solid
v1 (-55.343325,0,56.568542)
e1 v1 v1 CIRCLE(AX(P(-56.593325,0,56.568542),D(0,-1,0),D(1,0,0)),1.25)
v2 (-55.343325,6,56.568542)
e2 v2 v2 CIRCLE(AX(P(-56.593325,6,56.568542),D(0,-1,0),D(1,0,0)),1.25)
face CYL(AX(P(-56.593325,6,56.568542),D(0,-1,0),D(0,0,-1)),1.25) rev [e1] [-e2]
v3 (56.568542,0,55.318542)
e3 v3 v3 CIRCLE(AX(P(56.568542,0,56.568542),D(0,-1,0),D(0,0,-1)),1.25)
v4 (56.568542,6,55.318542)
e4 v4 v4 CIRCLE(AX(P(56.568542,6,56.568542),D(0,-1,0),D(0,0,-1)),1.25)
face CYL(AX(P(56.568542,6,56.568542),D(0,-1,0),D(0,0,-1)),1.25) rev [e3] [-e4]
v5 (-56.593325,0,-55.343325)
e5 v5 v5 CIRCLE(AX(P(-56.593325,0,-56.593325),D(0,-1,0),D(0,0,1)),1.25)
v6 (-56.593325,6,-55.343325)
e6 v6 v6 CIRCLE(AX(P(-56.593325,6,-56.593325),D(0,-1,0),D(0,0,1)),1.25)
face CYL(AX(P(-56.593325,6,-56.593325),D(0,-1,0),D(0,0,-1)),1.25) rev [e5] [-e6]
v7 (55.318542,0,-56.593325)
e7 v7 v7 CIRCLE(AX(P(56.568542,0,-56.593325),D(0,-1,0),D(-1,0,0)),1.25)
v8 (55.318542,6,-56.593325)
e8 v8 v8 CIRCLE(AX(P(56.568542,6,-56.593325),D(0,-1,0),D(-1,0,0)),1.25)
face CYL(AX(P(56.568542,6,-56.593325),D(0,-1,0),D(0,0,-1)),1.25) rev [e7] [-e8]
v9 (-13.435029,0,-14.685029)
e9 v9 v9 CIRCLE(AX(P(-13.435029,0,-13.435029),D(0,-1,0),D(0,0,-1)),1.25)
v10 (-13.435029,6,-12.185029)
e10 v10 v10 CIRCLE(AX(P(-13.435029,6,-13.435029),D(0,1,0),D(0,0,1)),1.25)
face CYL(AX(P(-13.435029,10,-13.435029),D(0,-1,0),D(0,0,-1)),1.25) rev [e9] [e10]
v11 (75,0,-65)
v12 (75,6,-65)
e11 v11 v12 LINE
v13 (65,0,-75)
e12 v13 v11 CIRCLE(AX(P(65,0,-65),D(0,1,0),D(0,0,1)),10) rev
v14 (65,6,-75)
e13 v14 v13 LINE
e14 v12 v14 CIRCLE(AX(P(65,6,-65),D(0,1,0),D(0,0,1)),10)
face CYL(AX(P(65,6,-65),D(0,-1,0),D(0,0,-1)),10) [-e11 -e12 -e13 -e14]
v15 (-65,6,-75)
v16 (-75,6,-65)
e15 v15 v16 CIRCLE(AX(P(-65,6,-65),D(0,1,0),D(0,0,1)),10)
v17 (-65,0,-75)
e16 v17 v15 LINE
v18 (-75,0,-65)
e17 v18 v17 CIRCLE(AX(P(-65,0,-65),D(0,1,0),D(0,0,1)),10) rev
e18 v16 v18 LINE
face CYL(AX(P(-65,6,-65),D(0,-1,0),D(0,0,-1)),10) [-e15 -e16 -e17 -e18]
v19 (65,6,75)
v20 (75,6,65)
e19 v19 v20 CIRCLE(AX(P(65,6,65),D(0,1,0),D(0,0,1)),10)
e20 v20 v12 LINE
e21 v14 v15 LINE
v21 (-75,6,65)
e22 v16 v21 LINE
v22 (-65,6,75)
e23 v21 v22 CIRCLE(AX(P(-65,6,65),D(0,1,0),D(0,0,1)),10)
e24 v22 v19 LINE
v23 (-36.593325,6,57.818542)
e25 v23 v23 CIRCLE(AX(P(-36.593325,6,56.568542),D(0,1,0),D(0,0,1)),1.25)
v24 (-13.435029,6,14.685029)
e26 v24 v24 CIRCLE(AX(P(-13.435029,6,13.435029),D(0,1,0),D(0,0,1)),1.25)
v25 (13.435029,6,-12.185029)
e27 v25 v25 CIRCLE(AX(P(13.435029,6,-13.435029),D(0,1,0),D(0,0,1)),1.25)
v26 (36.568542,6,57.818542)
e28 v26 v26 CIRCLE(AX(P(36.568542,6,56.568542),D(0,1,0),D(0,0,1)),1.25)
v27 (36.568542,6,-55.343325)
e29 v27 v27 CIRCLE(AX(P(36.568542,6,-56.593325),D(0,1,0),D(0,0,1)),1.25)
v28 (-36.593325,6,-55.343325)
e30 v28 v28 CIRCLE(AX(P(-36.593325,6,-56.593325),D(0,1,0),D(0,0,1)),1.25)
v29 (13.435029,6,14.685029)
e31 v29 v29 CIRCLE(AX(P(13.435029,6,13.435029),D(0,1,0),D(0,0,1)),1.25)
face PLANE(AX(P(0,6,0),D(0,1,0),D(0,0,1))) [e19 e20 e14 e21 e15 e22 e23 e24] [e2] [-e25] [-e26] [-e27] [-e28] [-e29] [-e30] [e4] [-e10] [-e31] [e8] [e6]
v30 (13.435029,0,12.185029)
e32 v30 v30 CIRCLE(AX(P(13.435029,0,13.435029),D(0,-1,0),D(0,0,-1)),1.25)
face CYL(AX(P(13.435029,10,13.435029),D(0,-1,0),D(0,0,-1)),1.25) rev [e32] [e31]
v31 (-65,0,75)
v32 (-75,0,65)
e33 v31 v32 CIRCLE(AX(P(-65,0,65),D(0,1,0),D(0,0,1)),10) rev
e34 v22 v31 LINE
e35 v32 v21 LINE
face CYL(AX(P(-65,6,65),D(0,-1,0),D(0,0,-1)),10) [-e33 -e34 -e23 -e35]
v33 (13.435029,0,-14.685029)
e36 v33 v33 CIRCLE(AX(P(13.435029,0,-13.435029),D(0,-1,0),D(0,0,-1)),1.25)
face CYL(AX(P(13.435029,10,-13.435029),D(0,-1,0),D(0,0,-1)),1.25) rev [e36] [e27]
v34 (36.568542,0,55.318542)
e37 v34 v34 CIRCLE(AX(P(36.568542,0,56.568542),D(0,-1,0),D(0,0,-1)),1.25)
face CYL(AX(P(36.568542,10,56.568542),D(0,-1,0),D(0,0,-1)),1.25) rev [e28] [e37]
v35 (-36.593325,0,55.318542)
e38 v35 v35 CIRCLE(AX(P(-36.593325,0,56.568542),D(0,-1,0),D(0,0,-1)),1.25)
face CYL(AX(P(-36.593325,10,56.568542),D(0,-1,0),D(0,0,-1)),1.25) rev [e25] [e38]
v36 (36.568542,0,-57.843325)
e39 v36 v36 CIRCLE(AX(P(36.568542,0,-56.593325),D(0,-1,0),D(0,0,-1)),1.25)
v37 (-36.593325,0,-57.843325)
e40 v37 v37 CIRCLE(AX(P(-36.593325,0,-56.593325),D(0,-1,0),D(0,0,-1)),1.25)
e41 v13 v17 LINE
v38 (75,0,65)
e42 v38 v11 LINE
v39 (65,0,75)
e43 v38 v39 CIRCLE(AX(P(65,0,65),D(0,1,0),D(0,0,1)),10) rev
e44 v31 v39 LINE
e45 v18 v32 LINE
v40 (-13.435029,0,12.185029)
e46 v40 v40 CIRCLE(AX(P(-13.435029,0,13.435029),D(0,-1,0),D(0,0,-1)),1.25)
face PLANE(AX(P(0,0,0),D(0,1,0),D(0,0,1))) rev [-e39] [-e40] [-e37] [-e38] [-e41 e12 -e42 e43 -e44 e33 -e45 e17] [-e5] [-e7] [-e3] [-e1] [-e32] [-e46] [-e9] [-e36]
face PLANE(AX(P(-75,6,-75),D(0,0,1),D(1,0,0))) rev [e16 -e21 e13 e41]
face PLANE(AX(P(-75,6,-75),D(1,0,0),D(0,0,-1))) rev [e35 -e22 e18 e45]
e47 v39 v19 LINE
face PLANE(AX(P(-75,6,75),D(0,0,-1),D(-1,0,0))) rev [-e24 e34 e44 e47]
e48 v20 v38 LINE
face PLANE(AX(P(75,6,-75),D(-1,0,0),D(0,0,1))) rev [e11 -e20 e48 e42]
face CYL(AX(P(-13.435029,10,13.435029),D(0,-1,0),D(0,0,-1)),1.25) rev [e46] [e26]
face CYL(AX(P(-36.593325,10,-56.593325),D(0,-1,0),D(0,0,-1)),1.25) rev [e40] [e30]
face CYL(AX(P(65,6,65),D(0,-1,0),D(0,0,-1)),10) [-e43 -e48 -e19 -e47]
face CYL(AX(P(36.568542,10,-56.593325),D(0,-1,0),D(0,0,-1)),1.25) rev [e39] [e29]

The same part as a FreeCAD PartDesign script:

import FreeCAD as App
import Part
import Sketcher
from FreeCAD import Vector


def edges_at(feature, points):
    """Names of the edges that pass closest to the given points."""
    edges = feature.Shape.Edges
    near = lambda p: min(range(len(edges)), key=lambda i: edges[i].distToShape(Part.Vertex(*p))[0])
    return sorted({f"Edge{near(p) + 1}" for p in points})


def add_polygon(sketch, points):
    """Adds a closed chain of lines whose ends are joined by coincident constraints."""
    first, n = sketch.GeometryCount, len(points)
    for a, b in zip(points, points[1:] + points[:1]):
        sketch.addGeometry(Part.LineSegment(App.Vector(*a, 0), App.Vector(*b, 0)), False)
    for i in range(n):
        sketch.addConstraint(Sketcher.Constraint("Coincident", first + i, 2, first + (i + 1) % n, 1))

doc = App.newDocument("Part")
body = doc.addObject("PartDesign::Body", "Body")

sketch1 = body.newObject("Sketcher::SketchObject", "Sketch")
sketch1.AttachmentSupport = (doc.getObject("XZ_Plane"), [""])
sketch1.MapMode = "FlatFace"
add_polygon(sketch1, [(-75, -75), (-75, 75), (75, 75), (75, -75)])
sketch1.addConstraint([
    Sketcher.Constraint("Vertical", 0),
    Sketcher.Constraint("Horizontal", 1),
    Sketcher.Constraint("Vertical", 2),
    Sketcher.Constraint("Horizontal", 3),
    Sketcher.Constraint("Symmetric", 0, 2, 2, 2, -1, 1),
    Sketcher.Constraint("Equal", 3, 0),
    Sketcher.Constraint("DistanceX", 1, 1, 1, 2, 150.0),
])
pad1 = body.newObject("PartDesign::Pad", "Pad")
pad1.Profile = sketch1
pad1.Length = 6
pad1.Reversed = True
doc.recompute()

fillet = body.newObject("PartDesign::Fillet", "Fillet")
fillet.Base = (pad1, edges_at(pad1, [
    (75, 3, 75),
    (-75, 3, 75),
    (-75, 3, -75),
    (75, 3, -75),
]))
fillet.Radius = 10

sketch2 = body.newObject("Sketcher::SketchObject", "Sketch001")
sketch2.AttachmentSupport = (doc.getObject("XZ_Plane"), [""])
sketch2.MapMode = "FlatFace"
sketch2.addGeometry(Part.Circle(Vector(56.6, 56.6, 0), Vector(0, 0, 1), 1.2), False)
sketch2.addConstraint([
    Sketcher.Constraint("Diameter", 0, 2.5),
    Sketcher.Constraint("DistanceX", -1, 1, 0, 3, 56.568542),
    Sketcher.Constraint("DistanceY", -1, 1, 0, 3, 56.568542),
])
pocket1 = body.newObject("PartDesign::Pocket", "Pocket")
pocket1.Profile = sketch2
pocket1.Type = "ThroughAll"
doc.recompute()

datumline = body.newObject("PartDesign::Line", "DatumLine")
datumline.Placement = App.Placement(Vector(-0.012391, 0, -0.012391), App.Rotation(Vector(0, 0, 1), Vector(0, 1, 0)))
polarpattern = body.newObject("PartDesign::PolarPattern", "PolarPattern")
polarpattern.Originals = [pocket1]
polarpattern.Axis = (datumline, [""])
polarpattern.Angle = 360
polarpattern.Occurrences = 4
body.Tip = polarpattern

sketch3 = body.newObject("Sketcher::SketchObject", "Sketch002")
sketch3.AttachmentSupport = (doc.getObject("XZ_Plane"), [""])
sketch3.MapMode = "FlatFace"
sketch3.addGeometry([
    Part.Circle(Vector(-36.6, -56.6, 0), Vector(0, 0, 1), 1.2),
    Part.Circle(Vector(36.6, -56.6, 0), Vector(0, 0, 1), 1.2),
    Part.Circle(Vector(-36.6, 56.6, 0), Vector(0, 0, 1), 1.2),
    Part.Circle(Vector(36.6, 56.6, 0), Vector(0, 0, 1), 1.2),
], False)
sketch3.addConstraint([
    Sketcher.Constraint("Equal", 0, 1),
    Sketcher.Constraint("Equal", 1, 2),
    Sketcher.Constraint("Equal", 2, 3),
    Sketcher.Constraint("Horizontal", 0, 3, 1, 3),
    Sketcher.Constraint("Horizontal", 2, 3, 3, 3),
    Sketcher.Constraint("Vertical", 0, 3, 2, 3),
    Sketcher.Constraint("Vertical", 1, 3, 3, 3),
    Sketcher.Constraint("Diameter", 0, 2.5),
    Sketcher.Constraint("DistanceX", 0, 3, -1, 1, 36.593325),
    Sketcher.Constraint("DistanceY", 0, 3, -1, 1, 56.593325),
    Sketcher.Constraint("DistanceX", -1, 1, 1, 3, 36.568542),
    Sketcher.Constraint("DistanceY", -1, 1, 2, 3, 56.568542),
])
pocket2 = body.newObject("PartDesign::Pocket", "Pocket001")
pocket2.Profile = sketch3
pocket2.Length = 10

sketch4 = body.newObject("Sketcher::SketchObject", "Sketch003")
sketch4.AttachmentSupport = (doc.getObject("XZ_Plane"), [""])
sketch4.MapMode = "FlatFace"
sketch4.addGeometry([
    Part.Circle(Vector(13.4, 13.4, 0), Vector(0, 0, 1), 1.2),
    Part.Circle(Vector(13.4, -13.4, 0), Vector(0, 0, 1), 1.2),
    Part.Circle(Vector(-13.4, -13.4, 0), Vector(0, 0, 1), 1.2),
    Part.Circle(Vector(-13.4, 13.4, 0), Vector(0, 0, 1), 1.2),
], False)
sketch4.addConstraint([
    Sketcher.Constraint("Equal", 0, 1),
    Sketcher.Constraint("Equal", 1, 2),
    Sketcher.Constraint("Equal", 2, 3),
    Sketcher.Constraint("Symmetric", 0, 3, 2, 3, -1, 1),
    Sketcher.Constraint("Symmetric", 1, 3, 3, 3, -1, 1),
    Sketcher.Constraint("Symmetric", 1, 3, 2, 3, -2),
    Sketcher.Constraint("Diameter", 0, 2.5),
    Sketcher.Constraint("DistanceX", -1, 1, 0, 3, 13.435029),
    Sketcher.Constraint("DistanceY", -1, 1, 0, 3, 13.435029),
])
pocket3 = body.newObject("PartDesign::Pocket", "Pocket002")
pocket3.Profile = sketch4
pocket3.Length = 10

doc.recompute()
